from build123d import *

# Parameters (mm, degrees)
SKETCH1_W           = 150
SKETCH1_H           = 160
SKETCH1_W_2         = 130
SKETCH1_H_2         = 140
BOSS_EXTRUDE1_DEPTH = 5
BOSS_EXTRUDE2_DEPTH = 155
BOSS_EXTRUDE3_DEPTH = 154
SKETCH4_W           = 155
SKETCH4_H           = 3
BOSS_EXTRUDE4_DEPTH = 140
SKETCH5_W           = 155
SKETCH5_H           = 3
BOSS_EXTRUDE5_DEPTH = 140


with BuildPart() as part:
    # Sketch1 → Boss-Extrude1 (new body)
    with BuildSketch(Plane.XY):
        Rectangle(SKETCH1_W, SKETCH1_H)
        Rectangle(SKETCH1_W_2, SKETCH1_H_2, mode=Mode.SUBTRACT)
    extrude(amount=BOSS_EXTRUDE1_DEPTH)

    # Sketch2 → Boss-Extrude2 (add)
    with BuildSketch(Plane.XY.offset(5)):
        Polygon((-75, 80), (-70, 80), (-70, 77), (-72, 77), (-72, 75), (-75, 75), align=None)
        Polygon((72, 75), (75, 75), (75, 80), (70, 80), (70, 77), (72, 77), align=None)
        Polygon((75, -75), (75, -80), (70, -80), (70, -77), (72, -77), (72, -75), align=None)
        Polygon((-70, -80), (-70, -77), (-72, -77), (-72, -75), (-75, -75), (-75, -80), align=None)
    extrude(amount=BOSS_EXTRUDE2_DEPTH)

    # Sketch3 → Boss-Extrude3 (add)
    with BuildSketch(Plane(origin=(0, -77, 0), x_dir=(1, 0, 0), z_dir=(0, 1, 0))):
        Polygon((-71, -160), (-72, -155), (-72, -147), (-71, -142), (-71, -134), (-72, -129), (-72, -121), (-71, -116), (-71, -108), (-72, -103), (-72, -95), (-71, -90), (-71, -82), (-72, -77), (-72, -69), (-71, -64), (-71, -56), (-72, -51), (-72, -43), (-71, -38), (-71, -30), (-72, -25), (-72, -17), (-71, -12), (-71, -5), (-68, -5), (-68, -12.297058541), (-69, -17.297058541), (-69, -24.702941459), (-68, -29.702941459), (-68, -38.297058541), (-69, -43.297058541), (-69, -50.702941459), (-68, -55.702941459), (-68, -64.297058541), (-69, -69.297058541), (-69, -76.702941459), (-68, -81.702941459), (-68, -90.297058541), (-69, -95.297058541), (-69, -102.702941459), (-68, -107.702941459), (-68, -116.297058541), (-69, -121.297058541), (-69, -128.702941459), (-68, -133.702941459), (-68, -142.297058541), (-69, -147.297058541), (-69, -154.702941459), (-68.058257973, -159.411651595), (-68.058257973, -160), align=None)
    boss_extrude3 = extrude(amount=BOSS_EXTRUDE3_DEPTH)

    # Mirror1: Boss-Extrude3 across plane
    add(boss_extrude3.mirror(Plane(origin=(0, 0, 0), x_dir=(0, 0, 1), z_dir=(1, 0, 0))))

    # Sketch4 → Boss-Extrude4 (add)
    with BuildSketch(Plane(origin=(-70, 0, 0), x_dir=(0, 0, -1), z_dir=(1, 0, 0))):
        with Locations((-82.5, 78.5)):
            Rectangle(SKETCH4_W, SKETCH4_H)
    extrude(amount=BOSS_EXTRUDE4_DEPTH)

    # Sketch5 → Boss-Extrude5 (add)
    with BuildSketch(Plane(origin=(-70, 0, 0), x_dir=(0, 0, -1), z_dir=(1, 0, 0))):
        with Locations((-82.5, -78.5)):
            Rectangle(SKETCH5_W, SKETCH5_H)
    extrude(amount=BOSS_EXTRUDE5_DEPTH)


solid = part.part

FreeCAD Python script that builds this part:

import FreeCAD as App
import Part
import Sketcher

V = App.Vector
Q = App.Units.Quantity

doc = App.newDocument("Part")
body = doc.addObject("PartDesign::Body", "Body")

# Sketch on XY plane
sketch1 = doc.addObject("Sketcher::SketchObject", "Sketch")
body.addObject(sketch1)
sketch1.AttachmentSupport = (doc.XY_Plane, [""])
sketch1.MapMode = "FlatFace"
sketch1.addGeometry([
    Part.LineSegment(V(-75, 80, 0), V(-75, -80, 0)),  # 0
    Part.LineSegment(V(-75, -80, 0), V(75, -80, 0)),  # 1
    Part.LineSegment(V(75, -80, 0), V(75, 80, 0)),  # 2
    Part.LineSegment(V(75, 80, 0), V(-75, 80, 0)),  # 3
    Part.LineSegment(V(65, -70, 0), V(-65, -70, 0)),  # 4
    Part.LineSegment(V(-65, -70, 0), V(-65, 70, 0)),  # 5
    Part.LineSegment(V(-65, 70, 0), V(65, 70, 0)),  # 6
    Part.LineSegment(V(65, 70, 0), V(65, -70, 0)),  # 7
], False)
sketch1.addConstraint([
    Sketcher.Constraint("Coincident", 0, 2, 1, 1),
    Sketcher.Constraint("Coincident", 1, 2, 2, 1),
    Sketcher.Constraint("Coincident", 2, 2, 3, 1),
    Sketcher.Constraint("Coincident", 3, 2, 0, 1),
    Sketcher.Constraint("Coincident", 4, 2, 5, 1),
    Sketcher.Constraint("Coincident", 5, 2, 6, 1),
    Sketcher.Constraint("Coincident", 6, 2, 7, 1),
    Sketcher.Constraint("Coincident", 7, 2, 4, 1),
    Sketcher.Constraint("Vertical", 0),
    Sketcher.Constraint("Horizontal", 1),
    Sketcher.Constraint("Vertical", 2),
    Sketcher.Constraint("Horizontal", 3),
    Sketcher.Constraint("Horizontal", 4),
    Sketcher.Constraint("Vertical", 5),
    Sketcher.Constraint("Horizontal", 6),
    Sketcher.Constraint("Vertical", 7),
    Sketcher.Constraint("Symmetric", 0, 2, 2, 2, -1, 1),
    Sketcher.Constraint("Symmetric", 4, 2, 6, 2, -1, 1),
    Sketcher.Constraint("DistanceX", 1, 1, 1, 2, Q("150 mm")),
    Sketcher.Constraint("DistanceX", 4, 2, 4, 1, Q("130 mm")),
    Sketcher.Constraint("DistanceY", 0, 2, 0, 1, Q("160 mm")),
    Sketcher.Constraint("DistanceY", 5, 1, 5, 2, Q("140 mm")),
])
pad1 = doc.addObject("PartDesign::Pad", "Pad")
body.addObject(pad1)
pad1.Profile = sketch1
pad1.Length = 5

# Sketch on XY plane
sketch2 = doc.addObject("Sketcher::SketchObject", "Sketch001")
body.addObject(sketch2)
sketch2.AttachmentSupport = (doc.XY_Plane, [""])
sketch2.MapMode = "FlatFace"
sketch2.AttachmentOffset = App.Placement(V(0, 0, 5), App.Rotation())
sketch2.addGeometry([
    Part.LineSegment(V(-70, 80, 0), V(-75, 80, 0)),  # 0
    Part.LineSegment(V(-75, 80, 0), V(-75, 75, 0)),  # 1
    Part.LineSegment(V(-75, 75, 0), V(-72, 75, 0)),  # 2
    Part.LineSegment(V(-72, 75, 0), V(-72, 77, 0)),  # 3
    Part.LineSegment(V(-72, 77, 0), V(-70, 77, 0)),  # 4
    Part.LineSegment(V(-70, 77, 0), V(-70, 80, 0)),  # 5
    Part.LineSegment(V(72, 75, 0), V(75, 75, 0)),  # 6
    Part.LineSegment(V(75, 75, 0), V(75, 80, 0)),  # 7
    Part.LineSegment(V(75, 80, 0), V(70, 80, 0)),  # 8
    Part.LineSegment(V(70, 80, 0), V(70, 77, 0)),  # 9
    Part.LineSegment(V(70, 77, 0), V(72, 77, 0)),  # 10
    Part.LineSegment(V(72, 77, 0), V(72, 75, 0)),  # 11
    Part.LineSegment(V(75, -80, 0), V(75, -75, 0)),  # 12
    Part.LineSegment(V(75, -75, 0), V(72, -75, 0)),  # 13
    Part.LineSegment(V(72, -75, 0), V(72, -77, 0)),  # 14
    Part.LineSegment(V(72, -77, 0), V(70, -77, 0)),  # 15
    Part.LineSegment(V(70, -77, 0), V(70, -80, 0)),  # 16
    Part.LineSegment(V(70, -80, 0), V(75, -80, 0)),  # 17
    Part.LineSegment(V(-70, -80, 0), V(-70, -77, 0)),  # 18
    Part.LineSegment(V(-70, -77, 0), V(-72, -77, 0)),  # 19
    Part.LineSegment(V(-72, -77, 0), V(-72, -75, 0)),  # 20
    Part.LineSegment(V(-72, -75, 0), V(-75, -75, 0)),  # 21
    Part.LineSegment(V(-75, -75, 0), V(-75, -80, 0)),  # 22
    Part.LineSegment(V(-75, -80, 0), V(-70, -80, 0)),  # 23
], False)
sketch2.addConstraint([
    Sketcher.Constraint("Coincident", 0, 2, 1, 1),
    Sketcher.Constraint("Coincident", 1, 2, 2, 1),
    Sketcher.Constraint("Coincident", 2, 2, 3, 1),
    Sketcher.Constraint("Coincident", 3, 2, 4, 1),
    Sketcher.Constraint("Coincident", 4, 2, 5, 1),
    Sketcher.Constraint("Coincident", 5, 2, 0, 1),
    Sketcher.Constraint("Coincident", 6, 2, 7, 1),
    Sketcher.Constraint("Coincident", 7, 2, 8, 1),
    Sketcher.Constraint("Coincident", 8, 2, 9, 1),
    Sketcher.Constraint("Coincident", 9, 2, 10, 1),
    Sketcher.Constraint("Coincident", 10, 2, 11, 1),
    Sketcher.Constraint("Coincident", 11, 2, 6, 1),
    Sketcher.Constraint("Coincident", 12, 2, 13, 1),
    Sketcher.Constraint("Coincident", 13, 2, 14, 1),
    Sketcher.Constraint("Coincident", 14, 2, 15, 1),
    Sketcher.Constraint("Coincident", 15, 2, 16, 1),
    Sketcher.Constraint("Coincident", 16, 2, 17, 1),
    Sketcher.Constraint("Coincident", 17, 2, 12, 1),
    Sketcher.Constraint("Coincident", 18, 2, 19, 1),
    Sketcher.Constraint("Coincident", 19, 2, 20, 1),
    Sketcher.Constraint("Coincident", 20, 2, 21, 1),
    Sketcher.Constraint("Coincident", 21, 2, 22, 1),
    Sketcher.Constraint("Coincident", 22, 2, 23, 1),
    Sketcher.Constraint("Coincident", 23, 2, 18, 1),
    Sketcher.Constraint("Horizontal", 0),
    Sketcher.Constraint("Vertical", 1),
    Sketcher.Constraint("Horizontal", 2),
    Sketcher.Constraint("Vertical", 3),
    Sketcher.Constraint("Horizontal", 4),
    Sketcher.Constraint("Vertical", 5),
    Sketcher.Constraint("Horizontal", 6),
    Sketcher.Constraint("Vertical", 7),
    Sketcher.Constraint("Horizontal", 8),
    Sketcher.Constraint("Vertical", 9),
    Sketcher.Constraint("Horizontal", 10),
    Sketcher.Constraint("Vertical", 11),
    Sketcher.Constraint("Vertical", 12),
    Sketcher.Constraint("Horizontal", 13),
    Sketcher.Constraint("Vertical", 14),
    Sketcher.Constraint("Horizontal", 15),
    Sketcher.Constraint("Vertical", 16),
    Sketcher.Constraint("Horizontal", 17),
    Sketcher.Constraint("Vertical", 18),
    Sketcher.Constraint("Horizontal", 19),
    Sketcher.Constraint("Vertical", 20),
    Sketcher.Constraint("Horizontal", 21),
    Sketcher.Constraint("Vertical", 22),
    Sketcher.Constraint("Horizontal", 23),
    Sketcher.Constraint("Symmetric", 1, 2, 12, 2, -1, 1),
    Sketcher.Constraint("Symmetric", 3, 2, 14, 2, -1, 1),
    Sketcher.Constraint("Symmetric", 5, 2, 16, 2, -1, 1),
    Sketcher.Constraint("Symmetric", 9, 2, 18, 2, -1, 1),
    Sketcher.Constraint("Symmetric", 11, 2, 20, 2, -1, 1),
    Sketcher.Constraint("Symmetric", 7, 2, 22, 2, -1, 1),
    Sketcher.Constraint("Symmetric", 1, 2, 6, 2, -2),
    Sketcher.Constraint("Symmetric", 5, 2, 8, 2, -2),
    Sketcher.Constraint("Symmetric", 3, 2, 10, 2, -2),
    Sketcher.Constraint("Equal", 23, 1),
    Sketcher.Constraint("Equal", 19, 3),
    Sketcher.Constraint("DistanceX", 0, 2, 0, 1, Q("5 mm")),
    Sketcher.Constraint("DistanceX", 2, 1, 2, 2, Q("3 mm")),
    Sketcher.Constraint("DistanceX", 0, 2, -1, 1, Q("75 mm")),
    Sketcher.Constraint("DistanceY", -1, 1, 0, 2, Q("80 mm")),
])
pad2 = doc.addObject("PartDesign::Pad", "Pad001")
body.addObject(pad2)
pad2.Profile = sketch2
pad2.Length = 155

# Sketch on XZ plane
sketch3 = doc.addObject("Sketcher::SketchObject", "Sketch002")
body.addObject(sketch3)
sketch3.AttachmentSupport = (doc.XZ_Plane, [""])
sketch3.MapMode = "FlatFace"
sketch3.AttachmentOffset = App.Placement(V(0, 0, 77), App.Rotation())
sketch3.addGeometry([
    Part.LineSegment(V(-72, 155, 0), V(-71, 160, 0)),  # 0
    Part.LineSegment(V(-71, 160, 0), V(-68.058258, 160, 0)),  # 1
    Part.LineSegment(V(-68.058258, 160, 0), V(-68.058258, 159.411652, 0)),  # 2
    Part.LineSegment(V(-68.058258, 159.411652, 0), V(-69, 154.702941, 0)),  # 3
    Part.LineSegment(V(-69, 154.702941, 0), V(-69, 147.297059, 0)),  # 4
    Part.LineSegment(V(-69, 147.297059, 0), V(-68, 142.297059, 0)),  # 5
    Part.LineSegment(V(-68, 142.297059, 0), V(-68, 133.702941, 0)),  # 6
    Part.LineSegment(V(-68, 133.702941, 0), V(-69, 128.702941, 0)),  # 7
    Part.LineSegment(V(-69, 128.702941, 0), V(-69, 121.297059, 0)),  # 8
    Part.LineSegment(V(-69, 121.297059, 0), V(-68, 116.297059, 0)),  # 9
    Part.LineSegment(V(-68, 116.297059, 0), V(-68, 107.702941, 0)),  # 10
    Part.LineSegment(V(-68, 107.702941, 0), V(-69, 102.702941, 0)),  # 11
    Part.LineSegment(V(-69, 102.702941, 0), V(-69, 95.297059, 0)),  # 12
    Part.LineSegment(V(-69, 95.297059, 0), V(-68, 90.297059, 0)),  # 13
    Part.LineSegment(V(-68, 90.297059, 0), V(-68, 81.702941, 0)),  # 14
    Part.LineSegment(V(-68, 81.702941, 0), V(-69, 76.702941, 0)),  # 15
    Part.LineSegment(V(-69, 76.702941, 0), V(-69, 69.297059, 0)),  # 16
    Part.LineSegment(V(-69, 69.297059, 0), V(-68, 64.297059, 0)),  # 17
    Part.LineSegment(V(-68, 64.297059, 0), V(-68, 55.702941, 0)),  # 18
    Part.LineSegment(V(-68, 55.702941, 0), V(-69, 50.702941, 0)),  # 19
    Part.LineSegment(V(-69, 50.702941, 0), V(-69, 43.297059, 0)),  # 20
    Part.LineSegment(V(-69, 43.297059, 0), V(-68, 38.297059, 0)),  # 21
    Part.LineSegment(V(-68, 38.297059, 0), V(-68, 29.702941, 0)),  # 22
    Part.LineSegment(V(-68, 29.702941, 0), V(-69, 24.702941, 0)),  # 23
    Part.LineSegment(V(-69, 24.702941, 0), V(-69, 17.297059, 0)),  # 24
    Part.LineSegment(V(-69, 17.297059, 0), V(-68, 12.297059, 0)),  # 25
    Part.LineSegment(V(-68, 12.297059, 0), V(-68, 5, 0)),  # 26
    Part.LineSegment(V(-68, 5, 0), V(-71, 5, 0)),  # 27
    Part.LineSegment(V(-71, 5, 0), V(-71, 12, 0)),  # 28
    Part.LineSegment(V(-71, 12, 0), V(-72, 17, 0)),  # 29
    Part.LineSegment(V(-72, 17, 0), V(-72, 25, 0)),  # 30
    Part.LineSegment(V(-72, 25, 0), V(-71, 30, 0)),  # 31
    Part.LineSegment(V(-71, 30, 0), V(-71, 38, 0)),  # 32
    Part.LineSegment(V(-71, 38, 0), V(-72, 43, 0)),  # 33
    Part.LineSegment(V(-72, 43, 0), V(-72, 51, 0)),  # 34
    Part.LineSegment(V(-72, 51, 0), V(-71, 56, 0)),  # 35
    Part.LineSegment(V(-71, 56, 0), V(-71, 64, 0)),  # 36
    Part.LineSegment(V(-71, 64, 0), V(-72, 69, 0)),  # 37
    Part.LineSegment(V(-72, 69, 0), V(-72, 77, 0)),  # 38
    Part.LineSegment(V(-72, 77, 0), V(-71, 82, 0)),  # 39
    Part.LineSegment(V(-71, 82, 0), V(-71, 90, 0)),  # 40
    Part.LineSegment(V(-71, 90, 0), V(-72, 95, 0)),  # 41
    Part.LineSegment(V(-72, 95, 0), V(-72, 103, 0)),  # 42
    Part.LineSegment(V(-72, 103, 0), V(-71, 108, 0)),  # 43
    Part.LineSegment(V(-71, 108, 0), V(-71, 116, 0)),  # 44
    Part.LineSegment(V(-71, 116, 0), V(-72, 121, 0)),  # 45
    Part.LineSegment(V(-72, 121, 0), V(-72, 129, 0)),  # 46
    Part.LineSegment(V(-72, 129, 0), V(-71, 134, 0)),  # 47
    Part.LineSegment(V(-71, 134, 0), V(-71, 142, 0)),  # 48
    Part.LineSegment(V(-71, 142, 0), V(-72, 147, 0)),  # 49
    Part.LineSegment(V(-72, 147, 0), V(-72, 155, 0)),  # 50
], False)
sketch3.addConstraint([
    Sketcher.Constraint("Coincident", 0, 2, 1, 1),
    Sketcher.Constraint("Coincident", 1, 2, 2, 1),
    Sketcher.Constraint("Coincident", 2, 2, 3, 1),
    Sketcher.Constraint("Coincident", 3, 2, 4, 1),
    Sketcher.Constraint("Coincident", 4, 2, 5, 1),
    Sketcher.Constraint("Coincident", 5, 2, 6, 1),
    Sketcher.Constraint("Coincident", 6, 2, 7, 1),
    Sketcher.Constraint("Coincident", 7, 2, 8, 1),
    Sketcher.Constraint("Coincident", 8, 2, 9, 1),
    Sketcher.Constraint("Coincident", 9, 2, 10, 1),
    Sketcher.Constraint("Coincident", 10, 2, 11, 1),
    Sketcher.Constraint("Coincident", 11, 2, 12, 1),
    Sketcher.Constraint("Coincident", 12, 2, 13, 1),
    Sketcher.Constraint("Coincident", 13, 2, 14, 1),
    Sketcher.Constraint("Coincident", 14, 2, 15, 1),
    Sketcher.Constraint("Coincident", 15, 2, 16, 1),
    Sketcher.Constraint("Coincident", 16, 2, 17, 1),
    Sketcher.Constraint("Coincident", 17, 2, 18, 1),
    Sketcher.Constraint("Coincident", 18, 2, 19, 1),
    Sketcher.Constraint("Coincident", 19, 2, 20, 1),
    Sketcher.Constraint("Coincident", 20, 2, 21, 1),
    Sketcher.Constraint("Coincident", 21, 2, 22, 1),
    Sketcher.Constraint("Coincident", 22, 2, 23, 1),
    Sketcher.Constraint("Coincident", 23, 2, 24, 1),
    Sketcher.Constraint("Coincident", 24, 2, 25, 1),
    Sketcher.Constraint("Coincident", 25, 2, 26, 1),
    Sketcher.Constraint("Coincident", 26, 2, 27, 1),
    Sketcher.Constraint("Coincident", 27, 2, 28, 1),
    Sketcher.Constraint("Coincident", 28, 2, 29, 1),
    Sketcher.Constraint("Coincident", 29, 2, 30, 1),
    Sketcher.Constraint("Coincident", 30, 2, 31, 1),
    Sketcher.Constraint("Coincident", 31, 2, 32, 1),
    Sketcher.Constraint("Coincident", 32, 2, 33, 1),
    Sketcher.Constraint("Coincident", 33, 2, 34, 1),
    Sketcher.Constraint("Coincident", 34, 2, 35, 1),
    Sketcher.Constraint("Coincident", 35, 2, 36, 1),
    Sketcher.Constraint("Coincident", 36, 2, 37, 1),
    Sketcher.Constraint("Coincident", 37, 2, 38, 1),
    Sketcher.Constraint("Coincident", 38, 2, 39, 1),
    Sketcher.Constraint("Coincident", 39, 2, 40, 1),
    Sketcher.Constraint("Coincident", 40, 2, 41, 1),
    Sketcher.Constraint("Coincident", 41, 2, 42, 1),
    Sketcher.Constraint("Coincident", 42, 2, 43, 1),
    Sketcher.Constraint("Coincident", 43, 2, 44, 1),
    Sketcher.Constraint("Coincident", 44, 2, 45, 1),
    Sketcher.Constraint("Coincident", 45, 2, 46, 1),
    Sketcher.Constraint("Coincident", 46, 2, 47, 1),
    Sketcher.Constraint("Coincident", 47, 2, 48, 1),
    Sketcher.Constraint("Coincident", 48, 2, 49, 1),
    Sketcher.Constraint("Coincident", 49, 2, 50, 1),
    Sketcher.Constraint("Coincident", 50, 2, 0, 1),
    Sketcher.Constraint("Horizontal", 1),
    Sketcher.Constraint("Vertical", 2),
    Sketcher.Constraint("Vertical", 4),
    Sketcher.Constraint("Vertical", 6),
    Sketcher.Constraint("Vertical", 8),
    Sketcher.Constraint("Vertical", 10),
    Sketcher.Constraint("Vertical", 12),
    Sketcher.Constraint("Vertical", 14),
    Sketcher.Constraint("Vertical", 16),
    Sketcher.Constraint("Vertical", 18),
    Sketcher.Constraint("Vertical", 20),
    Sketcher.Constraint("Vertical", 22),
    Sketcher.Constraint("Vertical", 24),
    Sketcher.Constraint("Vertical", 26),
    Sketcher.Constraint("Horizontal", 27),
    Sketcher.Constraint("Vertical", 28),
    Sketcher.Constraint("Vertical", 30),
    Sketcher.Constraint("Vertical", 32),
    Sketcher.Constraint("Vertical", 34),
    Sketcher.Constraint("Vertical", 36),
    Sketcher.Constraint("Vertical", 38),
    Sketcher.Constraint("Vertical", 40),
    Sketcher.Constraint("Vertical", 42),
    Sketcher.Constraint("Vertical", 44),
    Sketcher.Constraint("Vertical", 46),
    Sketcher.Constraint("Vertical", 48),
    Sketcher.Constraint("Vertical", 50),
    Sketcher.Constraint("Parallel", 0, 3),
    Sketcher.Constraint("Parallel", 3, 7),
    Sketcher.Constraint("Parallel", 5, 9),
    Sketcher.Constraint("Parallel", 7, 11),
    Sketcher.Constraint("Parallel", 9, 13),
    Sketcher.Constraint("Parallel", 11, 15),
    Sketcher.Constraint("Parallel", 13, 17),
    Sketcher.Constraint("Parallel", 15, 19),
    Sketcher.Constraint("Parallel", 17, 21),
    Sketcher.Constraint("Parallel", 19, 23),
    Sketcher.Constraint("Parallel", 21, 25),
    Sketcher.Constraint("Parallel", 25, 29),
    Sketcher.Constraint("Parallel", 23, 31),
    Sketcher.Constraint("Parallel", 29, 33),
    Sketcher.Constraint("Parallel", 31, 35),
    Sketcher.Constraint("Parallel", 33, 37),
    Sketcher.Constraint("Parallel", 35, 39),
    Sketcher.Constraint("Parallel", 37, 41),
    Sketcher.Constraint("Parallel", 39, 43),
    Sketcher.Constraint("Parallel", 41, 45),
    Sketcher.Constraint("Parallel", 43, 47),
    Sketcher.Constraint("Parallel", 45, 49),
    Sketcher.Constraint("Vertical", 4, 2, 7, 2),
    Sketcher.Constraint("Vertical", 6, 2, 9, 2),
    Sketcher.Constraint("Vertical", 8, 2, 11, 2),
    Sketcher.Constraint("Vertical", 10, 2, 13, 2),
    Sketcher.Constraint("Vertical", 12, 2, 15, 2),
    Sketcher.Constraint("Vertical", 14, 2, 17, 2),
    Sketcher.Constraint("Vertical", 16, 2, 19, 2),
    Sketcher.Constraint("Vertical", 18, 2, 21, 2),
    Sketcher.Constraint("Vertical", 20, 2, 23, 2),
    Sketcher.Constraint("Vertical", 22, 2, 25, 2),
    Sketcher.Constraint("Vertical", 0, 2, 27, 2),
    Sketcher.Constraint("Vertical", 28, 2, 31, 2),
    Sketcher.Constraint("Vertical", 30, 2, 33, 2),
    Sketcher.Constraint("Vertical", 32, 2, 35, 2),
    Sketcher.Constraint("Vertical", 34, 2, 37, 2),
    Sketcher.Constraint("Vertical", 36, 2, 39, 2),
    Sketcher.Constraint("Vertical", 38, 2, 41, 2),
    Sketcher.Constraint("Vertical", 40, 2, 43, 2),
    Sketcher.Constraint("Vertical", 42, 2, 45, 2),
    Sketcher.Constraint("Vertical", 44, 2, 47, 2),
    Sketcher.Constraint("Vertical", 46, 2, 49, 2),
    Sketcher.Constraint("Equal", 4, 8),
    Sketcher.Constraint("Equal", 6, 10),
    Sketcher.Constraint("Equal", 8, 12),
    Sketcher.Constraint("Equal", 10, 14),
    Sketcher.Constraint("Equal", 12, 16),
    Sketcher.Constraint("Equal", 14, 18),
    Sketcher.Constraint("Equal", 16, 20),
    Sketcher.Constraint("Equal", 18, 22),
    Sketcher.Constraint("Equal", 20, 24),
    Sketcher.Constraint("Equal", 30, 32),
    Sketcher.Constraint("Equal", 32, 34),
    Sketcher.Constraint("Equal", 34, 36),
    Sketcher.Constraint("Equal", 36, 38),
    Sketcher.Constraint("Equal", 38, 40),
    Sketcher.Constraint("Equal", 40, 42),
    Sketcher.Constraint("Equal", 42, 44),
    Sketcher.Constraint("Equal", 44, 46),
    Sketcher.Constraint("Equal", 46, 48),
    Sketcher.Constraint("Equal", 48, 50),
    Sketcher.Constraint("Equal", 0, 5),
    Sketcher.Constraint("Equal", 5, 7),
    Sketcher.Constraint("DistanceX", 27, 2, 27, 1, Q("3 mm")),
    Sketcher.Constraint("DistanceY", 28, 1, 28, 2, Q("7 mm")),
    Sketcher.Constraint("DistanceY", 30, 1, 30, 2, Q("8 mm")),
    Sketcher.Constraint("DistanceX", 0, 2, -1, 1, Q("71 mm")),
    Sketcher.Constraint("DistanceY", -1, 1, 0, 2, Q("160 mm")),
    Sketcher.Constraint("DistanceX", 3, 2, -1, 1, Q("69 mm")),
    Sketcher.Constraint("DistanceY", -1, 1, 26, 2, Q("5 mm")),
    Sketcher.Constraint("DistanceY", 6, 2, 3, 2, Q("21 mm")),
    Sketcher.Constraint("DistanceY", 2, 2, 2, 1, Q("0.588348 mm")),
    Sketcher.Constraint("DistanceY", 26, 2, 26, 1, Q("7.297059 mm")),
    Sketcher.Constraint("Distance", 3, Q("4.801961 mm")),
])
pad3 = doc.addObject("PartDesign::Pad", "Pad002")
body.addObject(pad3)
pad3.Profile = sketch3
pad3.Length = 154
pad3.Reversed = True
doc.recompute()

mirrored = doc.addObject("PartDesign::Mirrored", "Mirrored")
body.addObject(mirrored)
mirrored.Originals = [pad3]
mirrored.MirrorPlane = (doc.YZ_Plane, [""])
body.Tip = mirrored

# Sketch on YZ plane
sketch4 = doc.addObject("Sketcher::SketchObject", "Sketch003")
body.addObject(sketch4)
sketch4.AttachmentSupport = (doc.YZ_Plane, [""])
sketch4.MapMode = "FlatFace"
sketch4.AttachmentOffset = App.Placement(V(0, 0, -70), App.Rotation())
sketch4.addGeometry([
    Part.LineSegment(V(80, 160, 0), V(77, 160, 0)),
    Part.LineSegment(V(77, 160, 0), V(77, 5, 0)),
    Part.LineSegment(V(77, 5, 0), V(80, 5, 0)),
    Part.LineSegment(V(80, 5, 0), V(80, 160, 0)),
], False)
sketch4.addConstraint([
    Sketcher.Constraint("Coincident", 0, 2, 1, 1),
    Sketcher.Constraint("Coincident", 1, 2, 2, 1),
    Sketcher.Constraint("Coincident", 2, 2, 3, 1),
    Sketcher.Constraint("Coincident", 3, 2, 0, 1),
    Sketcher.Constraint("Horizontal", 0),
    Sketcher.Constraint("Vertical", 1),
    Sketcher.Constraint("Horizontal", 2),
    Sketcher.Constraint("Vertical", 3),
    Sketcher.Constraint("DistanceX", 0, 2, 0, 1, Q("3 mm")),
    Sketcher.Constraint("DistanceY", 1, 2, 1, 1, Q("155 mm")),
    Sketcher.Constraint("DistanceX", -1, 1, 0, 2, Q("77 mm")),
    Sketcher.Constraint("DistanceY", -1, 1, 0, 2, Q("160 mm")),
])
pad4 = doc.addObject("PartDesign::Pad", "Pad003")
body.addObject(pad4)
pad4.Profile = sketch4
pad4.Length = 140

# Sketch on YZ plane
sketch5 = doc.addObject("Sketcher::SketchObject", "Sketch004")
body.addObject(sketch5)
sketch5.AttachmentSupport = (doc.YZ_Plane, [""])
sketch5.MapMode = "FlatFace"
sketch5.AttachmentOffset = App.Placement(V(0, 0, -70), App.Rotation())
sketch5.addGeometry([
    Part.LineSegment(V(-77, 160, 0), V(-80, 160, 0)),
    Part.LineSegment(V(-80, 160, 0), V(-80, 5, 0)),
    Part.LineSegment(V(-80, 5, 0), V(-77, 5, 0)),
    Part.LineSegment(V(-77, 5, 0), V(-77, 160, 0)),
], False)
sketch5.addConstraint([
    Sketcher.Constraint("Coincident", 0, 2, 1, 1),
    Sketcher.Constraint("Coincident", 1, 2, 2, 1),
    Sketcher.Constraint("Coincident", 2, 2, 3, 1),
    Sketcher.Constraint("Coincident", 3, 2, 0, 1),
    Sketcher.Constraint("Horizontal", 0),
    Sketcher.Constraint("Vertical", 1),
    Sketcher.Constraint("Horizontal", 2),
    Sketcher.Constraint("Vertical", 3),
    Sketcher.Constraint("DistanceX", 0, 2, 0, 1, Q("3 mm")),
    Sketcher.Constraint("DistanceY", 1, 2, 1, 1, Q("155 mm")),
    Sketcher.Constraint("DistanceX", 0, 2, -1, 1, Q("80 mm")),
    Sketcher.Constraint("DistanceY", -1, 1, 0, 2, Q("160 mm")),
])
pad5 = doc.addObject("PartDesign::Pad", "Pad004")
body.addObject(pad5)
pad5.Profile = sketch5
pad5.Length = 140

doc.recompute()
